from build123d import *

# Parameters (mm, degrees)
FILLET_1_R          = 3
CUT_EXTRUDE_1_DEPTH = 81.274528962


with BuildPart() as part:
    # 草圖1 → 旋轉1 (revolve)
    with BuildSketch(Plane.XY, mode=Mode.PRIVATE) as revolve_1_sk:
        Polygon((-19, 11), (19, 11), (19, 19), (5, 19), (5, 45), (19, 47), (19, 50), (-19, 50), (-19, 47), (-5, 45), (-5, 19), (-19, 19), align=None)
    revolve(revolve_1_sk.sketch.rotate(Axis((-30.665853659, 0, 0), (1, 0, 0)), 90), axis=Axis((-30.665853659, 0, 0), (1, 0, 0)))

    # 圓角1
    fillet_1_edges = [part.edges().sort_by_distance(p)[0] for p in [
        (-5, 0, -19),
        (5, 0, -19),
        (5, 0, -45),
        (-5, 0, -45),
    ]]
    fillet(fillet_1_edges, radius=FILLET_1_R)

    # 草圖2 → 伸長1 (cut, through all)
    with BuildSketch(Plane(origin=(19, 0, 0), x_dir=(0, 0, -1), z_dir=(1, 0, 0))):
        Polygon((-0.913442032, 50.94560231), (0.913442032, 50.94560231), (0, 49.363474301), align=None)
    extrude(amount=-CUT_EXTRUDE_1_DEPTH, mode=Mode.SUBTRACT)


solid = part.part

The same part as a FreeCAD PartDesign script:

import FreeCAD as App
import Part
import Sketcher

V = App.Vector
Q = App.Units.Quantity


def edges_at(feature, points):
    """Names of the edges that pass closest to the given points."""
    edges = feature.Shape.Edges
    near = lambda p: min(range(len(edges)), key=lambda i: edges[i].distToShape(Part.Vertex(*p))[0])
    return sorted({f"Edge{near(p) + 1}" for p in points})

doc = App.newDocument("Part")
params = doc.addObject("Spreadsheet::Sheet", "Params")
for row, (alias, value) in enumerate([
    ("sketch1_width", "38 mm"),
    ("sketch1_width2", "14 mm"),
    ("sketch1_height", "8 mm"),
    ("sketch1_height2", "26 mm"),
    ("sketch1_height3", "3 mm"),
    ("revolution_angle", "360 deg"),
    ("fillet_radius", "3 mm"),
], start=1):
    params.set(f"A{row}", alias)
    params.set(f"B{row}", "=" + value)
    params.setAlias(f"B{row}", alias)

body = doc.addObject("PartDesign::Body", "Body")

# Sketch on XY plane
sketch1 = body.newObject("Sketcher::SketchObject", "Sketch")
sketch1.AttachmentSupport = (doc.getObject("XY_Plane"), [""])
sketch1.MapMode = "FlatFace"
sketch1.addGeometry(Part.LineSegment(V(-19, 11, 0), V(19, 11, 0)), False)
sketch1.addGeometry(Part.LineSegment(V(19, 11, 0), V(19, 19, 0)), False)
sketch1.addGeometry(Part.LineSegment(V(19, 19, 0), V(5, 19, 0)), False)
sketch1.addGeometry(Part.LineSegment(V(5, 19, 0), V(5, 45, 0)), False)
sketch1.addGeometry(Part.LineSegment(V(5, 45, 0), V(19, 47, 0)), False)
sketch1.addGeometry(Part.LineSegment(V(19, 47, 0), V(19, 50, 0)), False)
sketch1.addGeometry(Part.LineSegment(V(19, 50, 0), V(-19, 50, 0)), False)
sketch1.addGeometry(Part.LineSegment(V(-19, 50, 0), V(-19, 47, 0)), False)
sketch1.addGeometry(Part.LineSegment(V(-19, 47, 0), V(-5, 45, 0)), False)
sketch1.addGeometry(Part.LineSegment(V(-5, 45, 0), V(-5, 19, 0)), False)
sketch1.addGeometry(Part.LineSegment(V(-5, 19, 0), V(-19, 19, 0)), False)
sketch1.addGeometry(Part.LineSegment(V(-19, 19, 0), V(-19, 11, 0)), False)
sketch1.addConstraint(Sketcher.Constraint("Coincident", 0, 2, 1, 1))
sketch1.addConstraint(Sketcher.Constraint("Coincident", 1, 2, 2, 1))
sketch1.addConstraint(Sketcher.Constraint("Coincident", 2, 2, 3, 1))
sketch1.addConstraint(Sketcher.Constraint("Coincident", 3, 2, 4, 1))
sketch1.addConstraint(Sketcher.Constraint("Coincident", 4, 2, 5, 1))
sketch1.addConstraint(Sketcher.Constraint("Coincident", 5, 2, 6, 1))
sketch1.addConstraint(Sketcher.Constraint("Coincident", 6, 2, 7, 1))
sketch1.addConstraint(Sketcher.Constraint("Coincident", 7, 2, 8, 1))
sketch1.addConstraint(Sketcher.Constraint("Coincident", 8, 2, 9, 1))
sketch1.addConstraint(Sketcher.Constraint("Coincident", 9, 2, 10, 1))
sketch1.addConstraint(Sketcher.Constraint("Coincident", 10, 2, 11, 1))
sketch1.addConstraint(Sketcher.Constraint("Coincident", 11, 2, 0, 1))
sketch1.addConstraint(Sketcher.Constraint("Horizontal", 0))
sketch1.addConstraint(Sketcher.Constraint("Vertical", 1))
sketch1.addConstraint(Sketcher.Constraint("Horizontal", 2))
sketch1.addConstraint(Sketcher.Constraint("Vertical", 3))
sketch1.addConstraint(Sketcher.Constraint("Vertical", 5))
sketch1.addConstraint(Sketcher.Constraint("Horizontal", 6))
sketch1.addConstraint(Sketcher.Constraint("Vertical", 7))
sketch1.addConstraint(Sketcher.Constraint("Vertical", 9))
sketch1.addConstraint(Sketcher.Constraint("Horizontal", 10))
sketch1.addConstraint(Sketcher.Constraint("Vertical", 11))
sketch1.addConstraint(Sketcher.Constraint("Symmetric", 4, 2, 7, 2, -2))
sketch1.addConstraint(Sketcher.Constraint("Symmetric", 3, 2, 8, 2, -2))
sketch1.addConstraint(Sketcher.Constraint("Symmetric", 1, 2, 10, 2, -2))
sketch1.addConstraint(Sketcher.Constraint("Vertical", 1, 2, 4, 2))
sketch1.addConstraint(Sketcher.Constraint("DistanceX", 0, 1, 0, 2, 38.0))
sketch1.addConstraint(Sketcher.Constraint("DistanceX", 2, 2, 2, 1, 14.0))
sketch1.addConstraint(Sketcher.Constraint("DistanceY", 1, 1, 1, 2, 8.0))
sketch1.addConstraint(Sketcher.Constraint("DistanceY", 3, 1, 3, 2, 26.0))
sketch1.addConstraint(Sketcher.Constraint("DistanceY", 5, 1, 5, 2, 3.0))
sketch1.addConstraint(Sketcher.Constraint("DistanceY", -1, 1, 0, 2, 11.0))
sketch1.addConstraint(Sketcher.Constraint("DistanceY", -1, 1, 4, 2, 47.0))
sketch1.setExpression("Constraints[26]", "Params.sketch1_width")
sketch1.setExpression("Constraints[27]", "Params.sketch1_width2")
sketch1.setExpression("Constraints[28]", "Params.sketch1_height")
sketch1.setExpression("Constraints[29]", "Params.sketch1_height2")
sketch1.setExpression("Constraints[30]", "Params.sketch1_height3")
revolution = body.newObject("PartDesign::Revolution", "Revolution")
revolution.Profile = sketch1
revolution.ReferenceAxis = (sketch1, ["H_Axis"])
revolution.setExpression("Angle", "Params.revolution_angle")
doc.recompute()

fillet = body.newObject("PartDesign::Fillet", "Fillet")
fillet.Base = (revolution, edges_at(revolution, [
    (-5, 0, -19),
    (5, 0, -19),
    (5, 0, -45),
    (-5, 0, -45),
]))
fillet.setExpression("Radius", "Params.fillet_radius")

# Sketch on YZ plane
sketch2 = body.newObject("Sketcher::SketchObject", "Sketch001")
sketch2.AttachmentSupport = (doc.getObject("YZ_Plane"), [""])
sketch2.MapMode = "FlatFace"
sketch2.AttachmentOffset = App.Placement(V(0, 0, 19), App.Rotation())
sketch2.addGeometry(Part.LineSegment(V(50.9, -0.9, 0), V(50.9, 0.9, 0)), False)
sketch2.addGeometry(Part.LineSegment(V(50.9, 0.9, 0), V(49.4, 0, 0)), False)
sketch2.addGeometry(Part.LineSegment(V(49.4, 0, 0), V(50.9, -0.9, 0)), False)
sketch2.addConstraint(Sketcher.Constraint("Coincident", 0, 2, 1, 1))
sketch2.addConstraint(Sketcher.Constraint("Coincident", 1, 2, 2, 1))
sketch2.addConstraint(Sketcher.Constraint("Coincident", 2, 2, 0, 1))
sketch2.addConstraint(Sketcher.Constraint("Vertical", 0))
sketch2.addConstraint(Sketcher.Constraint("PointOnObject", 1, 2, -1))
sketch2.addConstraint(Sketcher.Constraint("Equal", 1, 2))
sketch2.addConstraint(Sketcher.Constraint("Angle", 1, Q("-150 deg")))
sketch2.addConstraint(Sketcher.Constraint("DistanceY", 0, 1, 0, 2, 1.826884))
sketch2.addConstraint(Sketcher.Constraint("DistanceX", -1, 1, 0, 2, 50.945602))
pocket1 = body.newObject("PartDesign::Pocket", "Pocket")
pocket1.Profile = sketch2
pocket1.Type = "ThroughAll"

doc.recompute()
